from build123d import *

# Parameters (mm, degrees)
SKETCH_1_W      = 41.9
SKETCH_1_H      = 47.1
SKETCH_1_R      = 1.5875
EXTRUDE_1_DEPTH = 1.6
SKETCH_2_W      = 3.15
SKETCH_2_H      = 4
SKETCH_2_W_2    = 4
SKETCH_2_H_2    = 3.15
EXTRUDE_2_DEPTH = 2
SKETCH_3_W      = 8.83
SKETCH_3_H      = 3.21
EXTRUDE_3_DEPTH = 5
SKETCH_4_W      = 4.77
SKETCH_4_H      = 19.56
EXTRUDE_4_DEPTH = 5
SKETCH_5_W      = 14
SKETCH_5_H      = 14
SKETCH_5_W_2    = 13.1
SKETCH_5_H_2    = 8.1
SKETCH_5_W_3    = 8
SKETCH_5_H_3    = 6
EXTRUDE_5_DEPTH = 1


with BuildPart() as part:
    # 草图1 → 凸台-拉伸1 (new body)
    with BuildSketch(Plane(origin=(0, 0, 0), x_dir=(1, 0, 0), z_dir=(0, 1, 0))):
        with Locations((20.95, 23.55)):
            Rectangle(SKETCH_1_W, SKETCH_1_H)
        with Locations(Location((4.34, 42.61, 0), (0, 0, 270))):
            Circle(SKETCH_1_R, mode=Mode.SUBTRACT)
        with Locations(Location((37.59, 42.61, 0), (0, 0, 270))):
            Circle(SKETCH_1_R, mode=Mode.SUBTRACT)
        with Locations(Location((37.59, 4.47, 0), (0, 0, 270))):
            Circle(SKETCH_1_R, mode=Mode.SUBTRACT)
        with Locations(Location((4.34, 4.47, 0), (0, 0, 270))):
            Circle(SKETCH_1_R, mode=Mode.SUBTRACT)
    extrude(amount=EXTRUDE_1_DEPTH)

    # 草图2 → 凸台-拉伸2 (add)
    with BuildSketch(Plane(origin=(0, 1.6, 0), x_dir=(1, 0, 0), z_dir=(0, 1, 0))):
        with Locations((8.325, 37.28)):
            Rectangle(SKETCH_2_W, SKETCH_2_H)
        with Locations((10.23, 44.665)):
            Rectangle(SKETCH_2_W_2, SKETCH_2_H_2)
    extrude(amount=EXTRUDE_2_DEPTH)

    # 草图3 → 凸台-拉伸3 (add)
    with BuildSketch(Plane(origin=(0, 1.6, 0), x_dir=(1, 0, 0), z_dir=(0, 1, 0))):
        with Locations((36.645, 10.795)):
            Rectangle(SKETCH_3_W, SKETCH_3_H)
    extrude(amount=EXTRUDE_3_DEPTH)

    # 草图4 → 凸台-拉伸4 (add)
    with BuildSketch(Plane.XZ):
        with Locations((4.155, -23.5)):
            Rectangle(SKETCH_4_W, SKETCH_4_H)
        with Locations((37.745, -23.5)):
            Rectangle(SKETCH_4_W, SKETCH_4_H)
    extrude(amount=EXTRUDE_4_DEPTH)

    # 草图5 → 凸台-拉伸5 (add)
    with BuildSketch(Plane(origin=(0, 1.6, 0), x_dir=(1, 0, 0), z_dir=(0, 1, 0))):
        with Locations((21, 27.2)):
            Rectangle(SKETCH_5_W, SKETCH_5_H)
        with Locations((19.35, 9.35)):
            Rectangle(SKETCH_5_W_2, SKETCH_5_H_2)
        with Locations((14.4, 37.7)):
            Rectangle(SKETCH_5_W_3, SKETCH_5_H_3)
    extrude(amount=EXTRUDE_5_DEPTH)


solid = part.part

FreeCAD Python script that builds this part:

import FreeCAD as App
import Part
import Sketcher
from FreeCAD import Vector
Q = App.Units.Quantity

doc = App.newDocument("Part")
body = doc.addObject("PartDesign::Body", "Body")

# Sketch on XZ plane
sketch1 = body.newObject("Sketcher::SketchObject", "Sketch")
sketch1.AttachmentSupport = (doc.getObject("XZ_Plane"), [""])
sketch1.MapMode = "FlatFace"
sketch1.addGeometry(Part.LineSegment(Vector(0, -47.1, 0), Vector(0, 0, 0)), False)
sketch1.addGeometry(Part.LineSegment(Vector(0, 0, 0), Vector(41.9, 0, 0)), False)
sketch1.addGeometry(Part.LineSegment(Vector(41.9, 0, 0), Vector(41.9, -47.1, 0)), False)
sketch1.addGeometry(Part.LineSegment(Vector(41.9, -47.1, 0), Vector(0, -47.1, 0)), False)
sketch1.addGeometry(Part.Circle(Vector(4.34, -4.47, 0), Vector(0, 0, 1), 1.5875), False)
sketch1.addGeometry(Part.Circle(Vector(37.59, -4.47, 0), Vector(0, 0, 1), 1.5875), False)
sketch1.addGeometry(Part.Circle(Vector(4.34, -42.61, 0), Vector(0, 0, 1), 1.5875), False)
sketch1.addGeometry(Part.Circle(Vector(37.59, -42.61, 0), Vector(0, 0, 1), 1.5875), False)
sketch1.addConstraint(Sketcher.Constraint("Coincident", 0, 2, 1, 1))
sketch1.addConstraint(Sketcher.Constraint("Coincident", 1, 2, 2, 1))
sketch1.addConstraint(Sketcher.Constraint("Coincident", 2, 2, 3, 1))
sketch1.addConstraint(Sketcher.Constraint("Coincident", 3, 2, 0, 1))
sketch1.addConstraint(Sketcher.Constraint("Vertical", 0))
sketch1.addConstraint(Sketcher.Constraint("Horizontal", 1))
sketch1.addConstraint(Sketcher.Constraint("Vertical", 2))
sketch1.addConstraint(Sketcher.Constraint("Horizontal", 3))
sketch1.addConstraint(Sketcher.Constraint("Coincident", 0, 2, -1, 1))
sketch1.addConstraint(Sketcher.Constraint("Equal", 4, 5))
sketch1.addConstraint(Sketcher.Constraint("Equal", 5, 6))
sketch1.addConstraint(Sketcher.Constraint("Equal", 6, 7))
sketch1.addConstraint(Sketcher.Constraint("Horizontal", 4, 3, 5, 3))
sketch1.addConstraint(Sketcher.Constraint("Horizontal", 6, 3, 7, 3))
sketch1.addConstraint(Sketcher.Constraint("Vertical", 4, 3, 6, 3))
sketch1.addConstraint(Sketcher.Constraint("Vertical", 5, 3, 7, 3))
sketch1.addConstraint(Sketcher.Constraint("Diameter", 4, Q("3.175 mm")))
sketch1.addConstraint(Sketcher.Constraint("DistanceX", 1, 1, 1, 2, Q("41.9 mm")))
sketch1.addConstraint(Sketcher.Constraint("DistanceY", 0, 1, 0, 2, Q("47.1 mm")))
sketch1.addConstraint(Sketcher.Constraint("DistanceX", -1, 1, 4, 3, Q("4.34 mm")))
sketch1.addConstraint(Sketcher.Constraint("DistanceY", 4, 3, -1, 1, Q("4.47 mm")))
sketch1.addConstraint(Sketcher.Constraint("DistanceX", -1, 1, 5, 3, Q("37.59 mm")))
sketch1.addConstraint(Sketcher.Constraint("DistanceY", 6, 3, -1, 1, Q("42.61 mm")))
pad1 = body.newObject("PartDesign::Pad", "Pad")
pad1.Profile = sketch1
pad1.Length = 1.6
pad1.Reversed = True

# Sketch on XZ plane
sketch2 = body.newObject("Sketcher::SketchObject", "Sketch001")
sketch2.AttachmentSupport = (doc.getObject("XZ_Plane"), [""])
sketch2.MapMode = "FlatFace"
sketch2.AttachmentOffset = App.Placement(Vector(0, 0, -1.6), App.Rotation())
sketch2.addGeometry(Part.LineSegment(Vector(6.75, -39.28, 0), Vector(6.75, -35.28, 0)), False)
sketch2.addGeometry(Part.LineSegment(Vector(6.75, -35.28, 0), Vector(9.9, -35.28, 0)), False)
sketch2.addGeometry(Part.LineSegment(Vector(9.9, -35.28, 0), Vector(9.9, -39.28, 0)), False)
sketch2.addGeometry(Part.LineSegment(Vector(9.9, -39.28, 0), Vector(6.75, -39.28, 0)), False)
sketch2.addGeometry(Part.LineSegment(Vector(8.23, -46.24, 0), Vector(8.23, -43.09, 0)), False)
sketch2.addGeometry(Part.LineSegment(Vector(8.23, -43.09, 0), Vector(12.23, -43.09, 0)), False)
sketch2.addGeometry(Part.LineSegment(Vector(12.23, -43.09, 0), Vector(12.23, -46.24, 0)), False)
sketch2.addGeometry(Part.LineSegment(Vector(12.23, -46.24, 0), Vector(8.23, -46.24, 0)), False)
sketch2.addConstraint(Sketcher.Constraint("Coincident", 0, 2, 1, 1))
sketch2.addConstraint(Sketcher.Constraint("Coincident", 1, 2, 2, 1))
sketch2.addConstraint(Sketcher.Constraint("Coincident", 2, 2, 3, 1))
sketch2.addConstraint(Sketcher.Constraint("Coincident", 3, 2, 0, 1))
sketch2.addConstraint(Sketcher.Constraint("Coincident", 4, 2, 5, 1))
sketch2.addConstraint(Sketcher.Constraint("Coincident", 5, 2, 6, 1))
sketch2.addConstraint(Sketcher.Constraint("Coincident", 6, 2, 7, 1))
sketch2.addConstraint(Sketcher.Constraint("Coincident", 7, 2, 4, 1))
sketch2.addConstraint(Sketcher.Constraint("Vertical", 0))
sketch2.addConstraint(Sketcher.Constraint("Horizontal", 1))
sketch2.addConstraint(Sketcher.Constraint("Vertical", 2))
sketch2.addConstraint(Sketcher.Constraint("Horizontal", 3))
sketch2.addConstraint(Sketcher.Constraint("Vertical", 4))
sketch2.addConstraint(Sketcher.Constraint("Horizontal", 5))
sketch2.addConstraint(Sketcher.Constraint("Vertical", 6))
sketch2.addConstraint(Sketcher.Constraint("Horizontal", 7))
sketch2.addConstraint(Sketcher.Constraint("Equal", 7, 0))
sketch2.addConstraint(Sketcher.Constraint("Equal", 3, 4))
sketch2.addConstraint(Sketcher.Constraint("DistanceX", 5, 1, 5, 2, Q("4 mm")))
sketch2.addConstraint(Sketcher.Constraint("DistanceX", 1, 1, 1, 2, Q("3.15 mm")))
sketch2.addConstraint(Sketcher.Constraint("DistanceX", -1, 1, 1, 2, Q("9.9 mm")))
sketch2.addConstraint(Sketcher.Constraint("DistanceY", 0, 2, -1, 1, Q("35.28 mm")))
sketch2.addConstraint(Sketcher.Constraint("DistanceX", -1, 1, 4, 2, Q("8.23 mm")))
sketch2.addConstraint(Sketcher.Constraint("DistanceY", 4, 2, -1, 1, Q("43.09 mm")))
pad2 = body.newObject("PartDesign::Pad", "Pad001")
pad2.Profile = sketch2
pad2.Length = 2
pad2.Reversed = True

# Sketch on XZ plane
sketch3 = body.newObject("Sketcher::SketchObject", "Sketch002")
sketch3.AttachmentSupport = (doc.getObject("XZ_Plane"), [""])
sketch3.MapMode = "FlatFace"
sketch3.AttachmentOffset = App.Placement(Vector(0, 0, -1.6), App.Rotation())
sketch3.addGeometry(Part.LineSegment(Vector(32.23, -12.4, 0), Vector(32.23, -9.19, 0)), False)
sketch3.addGeometry(Part.LineSegment(Vector(32.23, -9.19, 0), Vector(41.06, -9.19, 0)), False)
sketch3.addGeometry(Part.LineSegment(Vector(41.06, -9.19, 0), Vector(41.06, -12.4, 0)), False)
sketch3.addGeometry(Part.LineSegment(Vector(41.06, -12.4, 0), Vector(32.23, -12.4, 0)), False)
sketch3.addConstraint(Sketcher.Constraint("Coincident", 0, 2, 1, 1))
sketch3.addConstraint(Sketcher.Constraint("Coincident", 1, 2, 2, 1))
sketch3.addConstraint(Sketcher.Constraint("Coincident", 2, 2, 3, 1))
sketch3.addConstraint(Sketcher.Constraint("Coincident", 3, 2, 0, 1))
sketch3.addConstraint(Sketcher.Constraint("Vertical", 0))
sketch3.addConstraint(Sketcher.Constraint("Horizontal", 1))
sketch3.addConstraint(Sketcher.Constraint("Vertical", 2))
sketch3.addConstraint(Sketcher.Constraint("Horizontal", 3))
sketch3.addConstraint(Sketcher.Constraint("DistanceX", 1, 1, 1, 2, Q("8.83 mm")))
sketch3.addConstraint(Sketcher.Constraint("DistanceY", 0, 1, 0, 2, Q("3.21 mm")))
sketch3.addConstraint(Sketcher.Constraint("DistanceY", 2, 2, -1, 1, Q("12.4 mm")))
sketch3.addConstraint(Sketcher.Constraint("DistanceX", -1, 1, 0, 2, Q("32.23 mm")))
pad3 = body.newObject("PartDesign::Pad", "Pad002")
pad3.Profile = sketch3
pad3.Length = 5
pad3.Reversed = True

# Sketch on XZ plane
sketch4 = body.newObject("Sketcher::SketchObject", "Sketch003")
sketch4.AttachmentSupport = (doc.getObject("XZ_Plane"), [""])
sketch4.MapMode = "FlatFace"
sketch4.addGeometry(Part.LineSegment(Vector(1.77, -13.72, 0), Vector(1.77, -33.28, 0)), False)
sketch4.addGeometry(Part.LineSegment(Vector(1.77, -33.28, 0), Vector(6.54, -33.28, 0)), False)
sketch4.addGeometry(Part.LineSegment(Vector(6.54, -33.28, 0), Vector(6.54, -13.72, 0)), False)
sketch4.addGeometry(Part.LineSegment(Vector(6.54, -13.72, 0), Vector(1.77, -13.72, 0)), False)
sketch4.addGeometry(Part.LineSegment(Vector(35.36, -13.72, 0), Vector(35.36, -33.28, 0)), False)
sketch4.addGeometry(Part.LineSegment(Vector(35.36, -33.28, 0), Vector(40.13, -33.28, 0)), False)
sketch4.addGeometry(Part.LineSegment(Vector(40.13, -33.28, 0), Vector(40.13, -13.72, 0)), False)
sketch4.addGeometry(Part.LineSegment(Vector(40.13, -13.72, 0), Vector(35.36, -13.72, 0)), False)
sketch4.addConstraint(Sketcher.Constraint("Coincident", 0, 2, 1, 1))
sketch4.addConstraint(Sketcher.Constraint("Coincident", 1, 2, 2, 1))
sketch4.addConstraint(Sketcher.Constraint("Coincident", 2, 2, 3, 1))
sketch4.addConstraint(Sketcher.Constraint("Coincident", 3, 2, 0, 1))
sketch4.addConstraint(Sketcher.Constraint("Coincident", 4, 2, 5, 1))
sketch4.addConstraint(Sketcher.Constraint("Coincident", 5, 2, 6, 1))
sketch4.addConstraint(Sketcher.Constraint("Coincident", 6, 2, 7, 1))
sketch4.addConstraint(Sketcher.Constraint("Coincident", 7, 2, 4, 1))
sketch4.addConstraint(Sketcher.Constraint("Vertical", 0))
sketch4.addConstraint(Sketcher.Constraint("Horizontal", 1))
sketch4.addConstraint(Sketcher.Constraint("Vertical", 2))
sketch4.addConstraint(Sketcher.Constraint("Horizontal", 3))
sketch4.addConstraint(Sketcher.Constraint("Vertical", 4))
sketch4.addConstraint(Sketcher.Constraint("Horizontal", 5))
sketch4.addConstraint(Sketcher.Constraint("Vertical", 6))
sketch4.addConstraint(Sketcher.Constraint("Horizontal", 7))
sketch4.addConstraint(Sketcher.Constraint("Horizontal", 1, 2, 4, 2))
sketch4.addConstraint(Sketcher.Constraint("Horizontal", 3, 2, 6, 2))
sketch4.addConstraint(Sketcher.Constraint("Equal", 3, 5))
sketch4.addConstraint(Sketcher.Constraint("DistanceX", 1, 1, 1, 2, Q("4.77 mm")))
sketch4.addConstraint(Sketcher.Constraint("DistanceY", 0, 2, 0, 1, Q("19.56 mm")))
sketch4.addConstraint(Sketcher.Constraint("DistanceX", -1, 1, 0, 2, Q("1.77 mm")))
sketch4.addConstraint(Sketcher.Constraint("DistanceY", 0, 2, -1, 1, Q("33.28 mm")))
sketch4.addConstraint(Sketcher.Constraint("DistanceX", -1, 1, 4, 2, Q("35.36 mm")))
pad4 = body.newObject("PartDesign::Pad", "Pad003")
pad4.Profile = sketch4
pad4.Length = 5

# Sketch on XZ plane
sketch5 = body.newObject("Sketcher::SketchObject", "Sketch004")
sketch5.AttachmentSupport = (doc.getObject("XZ_Plane"), [""])
sketch5.MapMode = "FlatFace"
sketch5.AttachmentOffset = App.Placement(Vector(0, 0, -1.6), App.Rotation())
sketch5.addGeometry(Part.LineSegment(Vector(14, -34.2, 0), Vector(14, -20.2, 0)), False)
sketch5.addGeometry(Part.LineSegment(Vector(14, -20.2, 0), Vector(28, -20.2, 0)), False)
sketch5.addGeometry(Part.LineSegment(Vector(28, -20.2, 0), Vector(28, -34.2, 0)), False)
sketch5.addGeometry(Part.LineSegment(Vector(28, -34.2, 0), Vector(14, -34.2, 0)), False)
sketch5.addGeometry(Part.LineSegment(Vector(12.8, -13.4, 0), Vector(12.8, -5.3, 0)), False)
sketch5.addGeometry(Part.LineSegment(Vector(12.8, -5.3, 0), Vector(25.9, -5.3, 0)), False)
sketch5.addGeometry(Part.LineSegment(Vector(25.9, -5.3, 0), Vector(25.9, -13.4, 0)), False)
sketch5.addGeometry(Part.LineSegment(Vector(25.9, -13.4, 0), Vector(12.8, -13.4, 0)), False)
sketch5.addGeometry(Part.LineSegment(Vector(10.4, -40.7, 0), Vector(10.4, -34.7, 0)), False)
sketch5.addGeometry(Part.LineSegment(Vector(10.4, -34.7, 0), Vector(18.4, -34.7, 0)), False)
sketch5.addGeometry(Part.LineSegment(Vector(18.4, -34.7, 0), Vector(18.4, -40.7, 0)), False)
sketch5.addGeometry(Part.LineSegment(Vector(18.4, -40.7, 0), Vector(10.4, -40.7, 0)), False)
sketch5.addConstraint(Sketcher.Constraint("Coincident", 0, 2, 1, 1))
sketch5.addConstraint(Sketcher.Constraint("Coincident", 1, 2, 2, 1))
sketch5.addConstraint(Sketcher.Constraint("Coincident", 2, 2, 3, 1))
sketch5.addConstraint(Sketcher.Constraint("Coincident", 3, 2, 0, 1))
sketch5.addConstraint(Sketcher.Constraint("Coincident", 4, 2, 5, 1))
sketch5.addConstraint(Sketcher.Constraint("Coincident", 5, 2, 6, 1))
sketch5.addConstraint(Sketcher.Constraint("Coincident", 6, 2, 7, 1))
sketch5.addConstraint(Sketcher.Constraint("Coincident", 7, 2, 4, 1))
sketch5.addConstraint(Sketcher.Constraint("Coincident", 8, 2, 9, 1))
sketch5.addConstraint(Sketcher.Constraint("Coincident", 9, 2, 10, 1))
sketch5.addConstraint(Sketcher.Constraint("Coincident", 10, 2, 11, 1))
sketch5.addConstraint(Sketcher.Constraint("Coincident", 11, 2, 8, 1))
sketch5.addConstraint(Sketcher.Constraint("Vertical", 0))
sketch5.addConstraint(Sketcher.Constraint("Horizontal", 1))
sketch5.addConstraint(Sketcher.Constraint("Vertical", 2))
sketch5.addConstraint(Sketcher.Constraint("Horizontal", 3))
sketch5.addConstraint(Sketcher.Constraint("Vertical", 4))
sketch5.addConstraint(Sketcher.Constraint("Horizontal", 5))
sketch5.addConstraint(Sketcher.Constraint("Vertical", 6))
sketch5.addConstraint(Sketcher.Constraint("Horizontal", 7))
sketch5.addConstraint(Sketcher.Constraint("Vertical", 8))
sketch5.addConstraint(Sketcher.Constraint("Horizontal", 9))
sketch5.addConstraint(Sketcher.Constraint("Vertical", 10))
sketch5.addConstraint(Sketcher.Constraint("Horizontal", 11))
sketch5.addConstraint(Sketcher.Constraint("Equal", 3, 0))
sketch5.addConstraint(Sketcher.Constraint("DistanceX", 1, 1, 1, 2, Q("14 mm")))
sketch5.addConstraint(Sketcher.Constraint("DistanceX", 9, 1, 9, 2, Q("8 mm")))
sketch5.addConstraint(Sketcher.Constraint("DistanceY", 8, 1, 8, 2, Q("6 mm")))
sketch5.addConstraint(Sketcher.Constraint("DistanceX", 5, 1, 5, 2, Q("13.1 mm")))
sketch5.addConstraint(Sketcher.Constraint("DistanceY", 4, 1, 4, 2, Q("8.1 mm")))
sketch5.addConstraint(Sketcher.Constraint("DistanceX", -1, 1, 0, 2, Q("14 mm")))
sketch5.addConstraint(Sketcher.Constraint("DistanceY", 0, 2, -1, 1, Q("20.2 mm")))
sketch5.addConstraint(Sketcher.Constraint("DistanceX", -1, 1, 4, 2, Q("12.8 mm")))
sketch5.addConstraint(Sketcher.Constraint("DistanceY", 4, 2, -1, 1, Q("5.3 mm")))
sketch5.addConstraint(Sketcher.Constraint("DistanceX", -1, 1, 8, 2, Q("10.4 mm")))
sketch5.addConstraint(Sketcher.Constraint("DistanceY", 8, 2, -1, 1, Q("34.7 mm")))
pad5 = body.newObject("PartDesign::Pad", "Pad004")
pad5.Profile = sketch5
pad5.Length = 1
pad5.Reversed = True

doc.recompute()
